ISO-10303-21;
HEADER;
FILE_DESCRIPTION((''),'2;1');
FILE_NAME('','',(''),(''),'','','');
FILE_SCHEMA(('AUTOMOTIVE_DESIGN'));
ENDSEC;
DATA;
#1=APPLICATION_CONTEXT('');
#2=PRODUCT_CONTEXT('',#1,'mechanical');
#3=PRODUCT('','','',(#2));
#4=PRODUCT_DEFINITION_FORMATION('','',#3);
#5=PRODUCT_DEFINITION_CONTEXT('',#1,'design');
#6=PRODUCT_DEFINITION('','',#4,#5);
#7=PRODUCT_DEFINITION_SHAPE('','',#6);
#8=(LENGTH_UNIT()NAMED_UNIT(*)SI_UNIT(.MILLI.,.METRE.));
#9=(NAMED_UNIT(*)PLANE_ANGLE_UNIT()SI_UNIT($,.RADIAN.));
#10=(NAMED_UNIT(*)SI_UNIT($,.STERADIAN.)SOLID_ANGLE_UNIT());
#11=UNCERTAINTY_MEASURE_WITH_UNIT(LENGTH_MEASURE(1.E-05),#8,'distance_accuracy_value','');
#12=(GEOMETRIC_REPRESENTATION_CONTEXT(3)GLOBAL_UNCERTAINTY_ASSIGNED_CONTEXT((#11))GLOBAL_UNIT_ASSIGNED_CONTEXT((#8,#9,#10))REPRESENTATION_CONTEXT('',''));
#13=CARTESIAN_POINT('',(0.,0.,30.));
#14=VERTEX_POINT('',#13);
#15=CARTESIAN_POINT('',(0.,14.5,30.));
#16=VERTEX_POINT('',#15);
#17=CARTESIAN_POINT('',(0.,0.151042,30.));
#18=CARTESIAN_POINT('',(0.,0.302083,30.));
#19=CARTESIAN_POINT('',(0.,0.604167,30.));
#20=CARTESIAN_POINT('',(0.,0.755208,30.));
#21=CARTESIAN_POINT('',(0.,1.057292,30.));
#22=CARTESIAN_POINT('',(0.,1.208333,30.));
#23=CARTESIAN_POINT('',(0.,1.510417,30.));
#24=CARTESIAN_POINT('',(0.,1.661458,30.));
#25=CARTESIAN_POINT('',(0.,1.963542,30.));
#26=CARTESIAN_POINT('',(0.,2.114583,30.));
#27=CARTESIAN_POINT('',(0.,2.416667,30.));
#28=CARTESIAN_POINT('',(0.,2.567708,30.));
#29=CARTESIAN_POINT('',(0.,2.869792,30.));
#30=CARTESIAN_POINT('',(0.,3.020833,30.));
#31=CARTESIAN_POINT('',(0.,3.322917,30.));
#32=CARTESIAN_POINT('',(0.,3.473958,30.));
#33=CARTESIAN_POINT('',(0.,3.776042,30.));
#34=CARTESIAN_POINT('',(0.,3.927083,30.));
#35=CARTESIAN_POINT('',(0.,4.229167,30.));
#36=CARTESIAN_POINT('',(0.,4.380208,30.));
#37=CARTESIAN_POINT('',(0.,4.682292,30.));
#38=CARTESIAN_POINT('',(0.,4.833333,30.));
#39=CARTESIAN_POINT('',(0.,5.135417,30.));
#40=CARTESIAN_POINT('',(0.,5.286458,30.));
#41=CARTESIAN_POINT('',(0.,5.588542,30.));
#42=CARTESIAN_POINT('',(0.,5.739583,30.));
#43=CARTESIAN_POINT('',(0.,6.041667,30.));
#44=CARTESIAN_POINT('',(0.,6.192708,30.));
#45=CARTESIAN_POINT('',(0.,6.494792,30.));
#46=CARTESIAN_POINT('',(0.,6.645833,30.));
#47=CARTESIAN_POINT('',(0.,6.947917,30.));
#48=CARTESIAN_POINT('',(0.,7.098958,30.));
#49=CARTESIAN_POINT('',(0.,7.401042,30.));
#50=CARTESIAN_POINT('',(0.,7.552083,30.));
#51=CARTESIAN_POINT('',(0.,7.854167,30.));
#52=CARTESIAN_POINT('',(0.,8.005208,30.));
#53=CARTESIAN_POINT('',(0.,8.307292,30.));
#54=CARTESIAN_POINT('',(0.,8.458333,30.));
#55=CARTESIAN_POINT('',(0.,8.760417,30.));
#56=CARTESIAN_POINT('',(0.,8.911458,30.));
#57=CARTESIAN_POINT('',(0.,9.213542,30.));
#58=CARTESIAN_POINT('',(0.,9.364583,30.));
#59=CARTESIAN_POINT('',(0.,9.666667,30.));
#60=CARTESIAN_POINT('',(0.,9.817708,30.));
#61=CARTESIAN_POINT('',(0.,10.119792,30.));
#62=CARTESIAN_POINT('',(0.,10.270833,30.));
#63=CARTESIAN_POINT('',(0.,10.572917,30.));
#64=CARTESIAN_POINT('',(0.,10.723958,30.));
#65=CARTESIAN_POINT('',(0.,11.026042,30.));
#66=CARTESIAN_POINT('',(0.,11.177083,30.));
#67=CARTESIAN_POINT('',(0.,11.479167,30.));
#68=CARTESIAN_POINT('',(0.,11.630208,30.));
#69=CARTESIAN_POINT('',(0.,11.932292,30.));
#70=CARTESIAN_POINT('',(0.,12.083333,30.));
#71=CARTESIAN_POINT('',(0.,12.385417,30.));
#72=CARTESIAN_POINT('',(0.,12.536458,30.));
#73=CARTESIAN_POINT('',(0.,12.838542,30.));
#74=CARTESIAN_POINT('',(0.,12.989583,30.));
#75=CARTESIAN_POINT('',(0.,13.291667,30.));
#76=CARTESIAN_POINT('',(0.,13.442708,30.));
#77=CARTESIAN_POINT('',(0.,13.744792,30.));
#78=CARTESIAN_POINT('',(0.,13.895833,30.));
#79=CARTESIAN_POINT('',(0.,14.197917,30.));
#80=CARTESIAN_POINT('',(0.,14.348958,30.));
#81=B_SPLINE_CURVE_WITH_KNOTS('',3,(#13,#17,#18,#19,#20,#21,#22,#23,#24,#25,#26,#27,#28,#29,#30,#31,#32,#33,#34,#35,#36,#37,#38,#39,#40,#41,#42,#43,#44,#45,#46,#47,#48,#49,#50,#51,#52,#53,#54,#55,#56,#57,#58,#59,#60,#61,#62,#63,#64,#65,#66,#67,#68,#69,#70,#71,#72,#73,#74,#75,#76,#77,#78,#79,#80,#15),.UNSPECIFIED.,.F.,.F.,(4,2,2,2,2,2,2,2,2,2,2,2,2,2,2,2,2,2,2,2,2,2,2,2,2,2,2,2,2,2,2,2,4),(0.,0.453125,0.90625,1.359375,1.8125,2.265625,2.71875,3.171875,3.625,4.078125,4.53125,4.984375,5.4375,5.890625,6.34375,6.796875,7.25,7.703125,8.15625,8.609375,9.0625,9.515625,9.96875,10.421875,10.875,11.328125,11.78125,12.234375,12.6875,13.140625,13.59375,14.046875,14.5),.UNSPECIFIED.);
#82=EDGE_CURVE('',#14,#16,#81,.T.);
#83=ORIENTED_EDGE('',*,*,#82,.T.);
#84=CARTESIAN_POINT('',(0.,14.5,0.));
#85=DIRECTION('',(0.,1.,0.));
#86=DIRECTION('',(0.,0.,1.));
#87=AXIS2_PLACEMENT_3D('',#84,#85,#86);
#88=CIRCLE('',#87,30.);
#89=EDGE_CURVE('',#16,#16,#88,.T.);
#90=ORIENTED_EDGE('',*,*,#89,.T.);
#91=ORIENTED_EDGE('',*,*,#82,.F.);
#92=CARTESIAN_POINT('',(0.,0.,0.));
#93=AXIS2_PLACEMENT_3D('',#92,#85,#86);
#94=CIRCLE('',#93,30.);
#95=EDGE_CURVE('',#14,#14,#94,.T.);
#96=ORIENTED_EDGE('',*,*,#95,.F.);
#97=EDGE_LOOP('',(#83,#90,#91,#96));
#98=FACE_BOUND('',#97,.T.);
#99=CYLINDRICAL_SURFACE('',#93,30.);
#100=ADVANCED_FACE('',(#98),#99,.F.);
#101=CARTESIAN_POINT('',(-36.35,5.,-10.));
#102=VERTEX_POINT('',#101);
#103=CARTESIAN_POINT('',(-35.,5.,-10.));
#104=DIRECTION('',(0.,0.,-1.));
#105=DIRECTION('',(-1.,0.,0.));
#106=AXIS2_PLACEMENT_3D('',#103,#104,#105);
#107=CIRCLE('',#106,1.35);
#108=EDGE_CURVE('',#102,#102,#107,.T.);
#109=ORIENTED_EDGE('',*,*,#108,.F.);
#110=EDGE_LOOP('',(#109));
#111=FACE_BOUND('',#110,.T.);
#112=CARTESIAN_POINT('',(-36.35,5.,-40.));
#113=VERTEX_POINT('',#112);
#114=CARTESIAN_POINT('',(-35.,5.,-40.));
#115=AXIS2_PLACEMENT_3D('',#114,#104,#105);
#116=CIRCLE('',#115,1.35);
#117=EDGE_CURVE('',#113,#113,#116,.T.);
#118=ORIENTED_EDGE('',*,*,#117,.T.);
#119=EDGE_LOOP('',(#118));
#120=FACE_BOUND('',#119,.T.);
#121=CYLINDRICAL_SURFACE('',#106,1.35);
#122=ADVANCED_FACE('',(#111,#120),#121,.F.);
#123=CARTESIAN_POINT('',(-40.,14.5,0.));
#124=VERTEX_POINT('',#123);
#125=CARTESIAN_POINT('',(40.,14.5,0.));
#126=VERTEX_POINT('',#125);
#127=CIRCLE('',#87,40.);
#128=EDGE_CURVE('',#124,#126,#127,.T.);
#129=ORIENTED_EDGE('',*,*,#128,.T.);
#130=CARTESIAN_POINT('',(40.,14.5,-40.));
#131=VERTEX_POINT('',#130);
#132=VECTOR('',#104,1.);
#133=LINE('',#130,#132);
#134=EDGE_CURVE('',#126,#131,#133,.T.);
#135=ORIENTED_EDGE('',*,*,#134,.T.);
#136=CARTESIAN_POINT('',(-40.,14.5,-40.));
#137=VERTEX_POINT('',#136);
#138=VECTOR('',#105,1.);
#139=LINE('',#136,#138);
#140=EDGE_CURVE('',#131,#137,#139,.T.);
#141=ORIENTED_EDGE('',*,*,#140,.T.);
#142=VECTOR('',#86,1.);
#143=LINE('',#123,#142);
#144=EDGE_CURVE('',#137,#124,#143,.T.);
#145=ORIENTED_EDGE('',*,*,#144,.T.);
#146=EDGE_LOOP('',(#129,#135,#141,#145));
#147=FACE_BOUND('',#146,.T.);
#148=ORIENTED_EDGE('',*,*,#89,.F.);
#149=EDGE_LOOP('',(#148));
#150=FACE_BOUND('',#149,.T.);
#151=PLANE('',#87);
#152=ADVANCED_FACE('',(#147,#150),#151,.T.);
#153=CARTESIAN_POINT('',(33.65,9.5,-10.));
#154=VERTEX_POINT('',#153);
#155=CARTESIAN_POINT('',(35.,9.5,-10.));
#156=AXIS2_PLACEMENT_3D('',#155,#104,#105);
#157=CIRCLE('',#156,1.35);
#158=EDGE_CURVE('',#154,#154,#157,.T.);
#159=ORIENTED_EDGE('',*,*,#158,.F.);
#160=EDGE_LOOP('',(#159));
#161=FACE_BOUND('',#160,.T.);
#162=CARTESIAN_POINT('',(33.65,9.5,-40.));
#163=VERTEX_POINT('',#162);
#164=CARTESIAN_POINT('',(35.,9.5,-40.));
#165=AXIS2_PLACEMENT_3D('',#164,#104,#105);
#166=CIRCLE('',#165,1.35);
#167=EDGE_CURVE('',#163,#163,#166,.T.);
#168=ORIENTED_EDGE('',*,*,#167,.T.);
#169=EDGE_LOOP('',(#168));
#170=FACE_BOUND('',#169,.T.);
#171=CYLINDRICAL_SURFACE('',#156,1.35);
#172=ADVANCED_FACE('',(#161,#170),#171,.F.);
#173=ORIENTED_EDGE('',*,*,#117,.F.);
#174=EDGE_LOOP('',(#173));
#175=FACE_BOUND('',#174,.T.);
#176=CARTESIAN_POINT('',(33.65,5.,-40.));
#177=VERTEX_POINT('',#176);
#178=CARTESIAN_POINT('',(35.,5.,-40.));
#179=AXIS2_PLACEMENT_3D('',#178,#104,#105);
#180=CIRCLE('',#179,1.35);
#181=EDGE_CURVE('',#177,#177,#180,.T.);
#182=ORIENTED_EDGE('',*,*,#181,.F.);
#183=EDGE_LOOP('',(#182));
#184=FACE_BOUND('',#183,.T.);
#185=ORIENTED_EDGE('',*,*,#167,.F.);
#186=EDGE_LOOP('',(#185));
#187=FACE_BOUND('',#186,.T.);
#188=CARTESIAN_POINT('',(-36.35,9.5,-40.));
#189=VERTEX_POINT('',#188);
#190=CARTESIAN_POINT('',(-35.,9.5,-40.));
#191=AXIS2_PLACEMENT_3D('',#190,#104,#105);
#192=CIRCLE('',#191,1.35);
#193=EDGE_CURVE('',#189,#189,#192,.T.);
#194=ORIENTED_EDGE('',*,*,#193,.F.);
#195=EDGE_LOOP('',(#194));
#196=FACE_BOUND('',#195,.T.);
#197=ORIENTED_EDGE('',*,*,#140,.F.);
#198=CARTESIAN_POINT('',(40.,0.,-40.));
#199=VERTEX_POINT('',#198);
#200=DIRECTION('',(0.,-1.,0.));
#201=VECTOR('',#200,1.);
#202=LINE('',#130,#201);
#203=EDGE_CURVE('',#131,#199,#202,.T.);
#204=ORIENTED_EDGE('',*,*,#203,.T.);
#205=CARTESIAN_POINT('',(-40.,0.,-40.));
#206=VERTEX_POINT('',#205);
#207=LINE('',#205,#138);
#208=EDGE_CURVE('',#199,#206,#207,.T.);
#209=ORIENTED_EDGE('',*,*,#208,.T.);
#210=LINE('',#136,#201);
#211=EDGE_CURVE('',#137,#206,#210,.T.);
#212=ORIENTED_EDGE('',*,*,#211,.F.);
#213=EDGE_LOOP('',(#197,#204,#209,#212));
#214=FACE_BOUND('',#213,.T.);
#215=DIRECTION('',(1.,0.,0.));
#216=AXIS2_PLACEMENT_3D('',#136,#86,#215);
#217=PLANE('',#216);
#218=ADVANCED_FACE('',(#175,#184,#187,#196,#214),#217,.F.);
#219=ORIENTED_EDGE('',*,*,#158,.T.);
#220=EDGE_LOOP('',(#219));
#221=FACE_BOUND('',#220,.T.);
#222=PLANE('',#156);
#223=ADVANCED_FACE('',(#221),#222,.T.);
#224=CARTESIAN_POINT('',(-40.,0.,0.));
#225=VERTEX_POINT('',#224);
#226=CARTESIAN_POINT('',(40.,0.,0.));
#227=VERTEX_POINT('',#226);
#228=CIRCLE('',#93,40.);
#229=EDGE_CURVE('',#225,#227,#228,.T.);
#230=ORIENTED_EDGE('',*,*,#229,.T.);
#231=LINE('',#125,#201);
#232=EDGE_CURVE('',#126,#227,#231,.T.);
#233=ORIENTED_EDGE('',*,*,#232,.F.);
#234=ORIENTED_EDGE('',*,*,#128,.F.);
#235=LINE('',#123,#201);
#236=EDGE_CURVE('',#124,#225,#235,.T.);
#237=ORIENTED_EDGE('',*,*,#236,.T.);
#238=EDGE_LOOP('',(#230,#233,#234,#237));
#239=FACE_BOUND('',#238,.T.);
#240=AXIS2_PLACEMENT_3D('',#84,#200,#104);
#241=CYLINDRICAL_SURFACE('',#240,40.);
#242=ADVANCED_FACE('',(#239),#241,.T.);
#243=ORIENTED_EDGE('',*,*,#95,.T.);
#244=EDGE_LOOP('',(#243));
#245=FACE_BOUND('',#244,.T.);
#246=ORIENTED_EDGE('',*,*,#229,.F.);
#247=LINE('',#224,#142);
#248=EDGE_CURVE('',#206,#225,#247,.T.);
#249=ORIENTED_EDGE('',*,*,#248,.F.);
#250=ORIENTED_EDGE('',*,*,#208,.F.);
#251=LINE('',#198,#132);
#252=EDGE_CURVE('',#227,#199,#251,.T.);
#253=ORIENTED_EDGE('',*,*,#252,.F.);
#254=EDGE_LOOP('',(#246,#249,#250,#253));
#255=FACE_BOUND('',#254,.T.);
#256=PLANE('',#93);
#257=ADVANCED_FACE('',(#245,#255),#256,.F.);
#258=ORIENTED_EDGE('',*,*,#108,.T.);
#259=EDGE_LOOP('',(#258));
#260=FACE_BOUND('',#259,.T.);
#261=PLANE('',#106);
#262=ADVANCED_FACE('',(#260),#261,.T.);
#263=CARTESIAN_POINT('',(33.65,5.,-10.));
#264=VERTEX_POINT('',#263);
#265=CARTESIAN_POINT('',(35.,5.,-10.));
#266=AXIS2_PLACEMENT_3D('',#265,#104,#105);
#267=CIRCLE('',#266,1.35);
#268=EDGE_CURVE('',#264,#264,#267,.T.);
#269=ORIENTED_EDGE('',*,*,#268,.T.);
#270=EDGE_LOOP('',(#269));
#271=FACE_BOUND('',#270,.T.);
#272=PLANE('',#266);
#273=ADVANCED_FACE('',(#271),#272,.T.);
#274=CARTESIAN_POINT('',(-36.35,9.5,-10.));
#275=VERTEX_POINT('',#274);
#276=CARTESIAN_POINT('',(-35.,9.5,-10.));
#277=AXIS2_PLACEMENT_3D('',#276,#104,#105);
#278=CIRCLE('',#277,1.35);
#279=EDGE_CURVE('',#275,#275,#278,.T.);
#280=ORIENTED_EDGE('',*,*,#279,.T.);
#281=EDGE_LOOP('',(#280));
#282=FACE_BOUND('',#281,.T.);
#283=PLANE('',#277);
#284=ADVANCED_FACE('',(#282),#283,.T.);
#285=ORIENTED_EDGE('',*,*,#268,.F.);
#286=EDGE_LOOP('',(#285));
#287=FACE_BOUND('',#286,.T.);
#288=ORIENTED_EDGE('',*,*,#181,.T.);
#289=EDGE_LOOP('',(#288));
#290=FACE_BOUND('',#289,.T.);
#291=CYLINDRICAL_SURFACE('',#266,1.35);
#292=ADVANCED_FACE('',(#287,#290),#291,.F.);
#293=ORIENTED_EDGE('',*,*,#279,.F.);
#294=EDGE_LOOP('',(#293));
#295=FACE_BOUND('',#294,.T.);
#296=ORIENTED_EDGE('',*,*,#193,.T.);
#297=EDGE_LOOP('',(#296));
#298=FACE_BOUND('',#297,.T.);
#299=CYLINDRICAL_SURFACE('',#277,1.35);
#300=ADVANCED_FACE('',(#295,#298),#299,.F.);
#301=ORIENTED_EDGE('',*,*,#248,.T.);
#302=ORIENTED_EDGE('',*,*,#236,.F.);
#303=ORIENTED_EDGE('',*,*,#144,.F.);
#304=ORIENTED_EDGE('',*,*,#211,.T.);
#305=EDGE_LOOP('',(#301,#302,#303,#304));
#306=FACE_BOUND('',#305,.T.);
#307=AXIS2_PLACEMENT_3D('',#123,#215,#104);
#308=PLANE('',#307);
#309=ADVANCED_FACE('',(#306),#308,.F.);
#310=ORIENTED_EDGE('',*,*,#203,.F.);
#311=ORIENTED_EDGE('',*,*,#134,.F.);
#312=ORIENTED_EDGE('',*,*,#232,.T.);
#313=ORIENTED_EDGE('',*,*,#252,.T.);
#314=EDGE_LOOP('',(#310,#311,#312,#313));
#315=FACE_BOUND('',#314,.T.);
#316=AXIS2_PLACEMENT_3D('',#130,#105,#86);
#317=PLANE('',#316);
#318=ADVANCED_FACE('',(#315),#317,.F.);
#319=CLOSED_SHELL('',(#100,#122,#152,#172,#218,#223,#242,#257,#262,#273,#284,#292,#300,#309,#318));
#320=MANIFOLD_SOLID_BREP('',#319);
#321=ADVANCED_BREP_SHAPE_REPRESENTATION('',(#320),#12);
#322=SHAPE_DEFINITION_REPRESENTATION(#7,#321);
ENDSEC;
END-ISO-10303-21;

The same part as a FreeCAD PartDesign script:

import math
import FreeCAD as App
import Part
import Sketcher

V = App.Vector

doc = App.newDocument("Part")
body = doc.addObject("PartDesign::Body", "Body")

sketch1 = body.newObject("Sketcher::SketchObject", "Sketch")
sketch1.AttachmentSupport = (doc.getObject("XZ_Plane"), [""])
sketch1.MapMode = "FlatFace"
sketch1.addGeometry([
    Part.LineSegment(V(-40, -40, 0), V(-40, 0, 0)),
    Part.ArcOfCircle(Part.Circle(V(0, 0, 0), V(0, 0, 1), 40), math.radians(0), math.radians(180)),
    Part.LineSegment(V(40, 0, 0), V(40, -40, 0)),
    Part.LineSegment(V(40, -40, 0), V(-40, -40, 0)),
], False)
sketch1.addConstraint([
    Sketcher.Constraint("Tangent", 0, 2, 1, 2),
    Sketcher.Constraint("Tangent", 1, 1, 2, 1),
    Sketcher.Constraint("Coincident", 2, 2, 3, 1),
    Sketcher.Constraint("Coincident", 3, 2, 0, 1),
    Sketcher.Constraint("Vertical", 0),
    Sketcher.Constraint("Vertical", 2),
    Sketcher.Constraint("Horizontal", 3),
    Sketcher.Constraint("Coincident", 1, 3, -1, 1),
    Sketcher.Constraint("Radius", 1, 40.0),
    Sketcher.Constraint("DistanceY", 0, 1, 0, 2, 40.0),
])
pad1 = body.newObject("PartDesign::Pad", "Pad")
pad1.Profile = sketch1
pad1.Length = 14.5
pad1.Reversed = True

sketch2 = body.newObject("Sketcher::SketchObject", "Sketch001")
sketch2.AttachmentSupport = (doc.getObject("XZ_Plane"), [""])
sketch2.MapMode = "FlatFace"
sketch2.AttachmentOffset = App.Placement(V(0, 0, -14.5), App.Rotation())
sketch2.addGeometry(Part.Circle(V(0, 0, 0), V(0, 0, 1), 30), False)
sketch2.addConstraint([
    Sketcher.Constraint("Coincident", 0, 3, -1, 1),
    Sketcher.Constraint("Diameter", 0, 60.0),
])
pocket1 = body.newObject("PartDesign::Pocket", "Pocket")
pocket1.Profile = sketch2
pocket1.Type = "ThroughAll"
pocket1.Reversed = True

sketch3 = body.newObject("Sketcher::SketchObject", "Sketch002")
sketch3.AttachmentSupport = (doc.getObject("XY_Plane"), [""])
sketch3.MapMode = "FlatFace"
sketch3.AttachmentOffset = App.Placement(V(0, 0, -40), App.Rotation())
sketch3.addGeometry([
    Part.Circle(V(35, 9.5, 0), V(0, 0, 1), 1.35),
    Part.Circle(V(35, 5, 0), V(0, 0, 1), 1.35),
    Part.Circle(V(-35, 9.5, 0), V(0, 0, 1), 1.35),
    Part.Circle(V(-35, 5, 0), V(0, 0, 1), 1.35),
], False)
sketch3.addConstraint([
    Sketcher.Constraint("Equal", 0, 1),
    Sketcher.Constraint("Equal", 1, 2),
    Sketcher.Constraint("Equal", 2, 3),
    Sketcher.Constraint("Symmetric", 0, 3, 2, 3, -2),
    Sketcher.Constraint("Symmetric", 1, 3, 3, 3, -2),
    Sketcher.Constraint("Vertical", 0, 3, 1, 3),
    Sketcher.Constraint("Diameter", 0, 2.7),
    Sketcher.Constraint("DistanceX", -1, 1, 0, 3, 35.0),
    Sketcher.Constraint("DistanceY", -1, 1, 1, 3, 5.0),
    Sketcher.Constraint("DistanceY", -1, 1, 0, 3, 9.5),
])
pocket2 = body.newObject("PartDesign::Pocket", "Pocket001")
pocket2.Profile = sketch3
pocket2.Length = 30
pocket2.Reversed = True

doc.recompute()
